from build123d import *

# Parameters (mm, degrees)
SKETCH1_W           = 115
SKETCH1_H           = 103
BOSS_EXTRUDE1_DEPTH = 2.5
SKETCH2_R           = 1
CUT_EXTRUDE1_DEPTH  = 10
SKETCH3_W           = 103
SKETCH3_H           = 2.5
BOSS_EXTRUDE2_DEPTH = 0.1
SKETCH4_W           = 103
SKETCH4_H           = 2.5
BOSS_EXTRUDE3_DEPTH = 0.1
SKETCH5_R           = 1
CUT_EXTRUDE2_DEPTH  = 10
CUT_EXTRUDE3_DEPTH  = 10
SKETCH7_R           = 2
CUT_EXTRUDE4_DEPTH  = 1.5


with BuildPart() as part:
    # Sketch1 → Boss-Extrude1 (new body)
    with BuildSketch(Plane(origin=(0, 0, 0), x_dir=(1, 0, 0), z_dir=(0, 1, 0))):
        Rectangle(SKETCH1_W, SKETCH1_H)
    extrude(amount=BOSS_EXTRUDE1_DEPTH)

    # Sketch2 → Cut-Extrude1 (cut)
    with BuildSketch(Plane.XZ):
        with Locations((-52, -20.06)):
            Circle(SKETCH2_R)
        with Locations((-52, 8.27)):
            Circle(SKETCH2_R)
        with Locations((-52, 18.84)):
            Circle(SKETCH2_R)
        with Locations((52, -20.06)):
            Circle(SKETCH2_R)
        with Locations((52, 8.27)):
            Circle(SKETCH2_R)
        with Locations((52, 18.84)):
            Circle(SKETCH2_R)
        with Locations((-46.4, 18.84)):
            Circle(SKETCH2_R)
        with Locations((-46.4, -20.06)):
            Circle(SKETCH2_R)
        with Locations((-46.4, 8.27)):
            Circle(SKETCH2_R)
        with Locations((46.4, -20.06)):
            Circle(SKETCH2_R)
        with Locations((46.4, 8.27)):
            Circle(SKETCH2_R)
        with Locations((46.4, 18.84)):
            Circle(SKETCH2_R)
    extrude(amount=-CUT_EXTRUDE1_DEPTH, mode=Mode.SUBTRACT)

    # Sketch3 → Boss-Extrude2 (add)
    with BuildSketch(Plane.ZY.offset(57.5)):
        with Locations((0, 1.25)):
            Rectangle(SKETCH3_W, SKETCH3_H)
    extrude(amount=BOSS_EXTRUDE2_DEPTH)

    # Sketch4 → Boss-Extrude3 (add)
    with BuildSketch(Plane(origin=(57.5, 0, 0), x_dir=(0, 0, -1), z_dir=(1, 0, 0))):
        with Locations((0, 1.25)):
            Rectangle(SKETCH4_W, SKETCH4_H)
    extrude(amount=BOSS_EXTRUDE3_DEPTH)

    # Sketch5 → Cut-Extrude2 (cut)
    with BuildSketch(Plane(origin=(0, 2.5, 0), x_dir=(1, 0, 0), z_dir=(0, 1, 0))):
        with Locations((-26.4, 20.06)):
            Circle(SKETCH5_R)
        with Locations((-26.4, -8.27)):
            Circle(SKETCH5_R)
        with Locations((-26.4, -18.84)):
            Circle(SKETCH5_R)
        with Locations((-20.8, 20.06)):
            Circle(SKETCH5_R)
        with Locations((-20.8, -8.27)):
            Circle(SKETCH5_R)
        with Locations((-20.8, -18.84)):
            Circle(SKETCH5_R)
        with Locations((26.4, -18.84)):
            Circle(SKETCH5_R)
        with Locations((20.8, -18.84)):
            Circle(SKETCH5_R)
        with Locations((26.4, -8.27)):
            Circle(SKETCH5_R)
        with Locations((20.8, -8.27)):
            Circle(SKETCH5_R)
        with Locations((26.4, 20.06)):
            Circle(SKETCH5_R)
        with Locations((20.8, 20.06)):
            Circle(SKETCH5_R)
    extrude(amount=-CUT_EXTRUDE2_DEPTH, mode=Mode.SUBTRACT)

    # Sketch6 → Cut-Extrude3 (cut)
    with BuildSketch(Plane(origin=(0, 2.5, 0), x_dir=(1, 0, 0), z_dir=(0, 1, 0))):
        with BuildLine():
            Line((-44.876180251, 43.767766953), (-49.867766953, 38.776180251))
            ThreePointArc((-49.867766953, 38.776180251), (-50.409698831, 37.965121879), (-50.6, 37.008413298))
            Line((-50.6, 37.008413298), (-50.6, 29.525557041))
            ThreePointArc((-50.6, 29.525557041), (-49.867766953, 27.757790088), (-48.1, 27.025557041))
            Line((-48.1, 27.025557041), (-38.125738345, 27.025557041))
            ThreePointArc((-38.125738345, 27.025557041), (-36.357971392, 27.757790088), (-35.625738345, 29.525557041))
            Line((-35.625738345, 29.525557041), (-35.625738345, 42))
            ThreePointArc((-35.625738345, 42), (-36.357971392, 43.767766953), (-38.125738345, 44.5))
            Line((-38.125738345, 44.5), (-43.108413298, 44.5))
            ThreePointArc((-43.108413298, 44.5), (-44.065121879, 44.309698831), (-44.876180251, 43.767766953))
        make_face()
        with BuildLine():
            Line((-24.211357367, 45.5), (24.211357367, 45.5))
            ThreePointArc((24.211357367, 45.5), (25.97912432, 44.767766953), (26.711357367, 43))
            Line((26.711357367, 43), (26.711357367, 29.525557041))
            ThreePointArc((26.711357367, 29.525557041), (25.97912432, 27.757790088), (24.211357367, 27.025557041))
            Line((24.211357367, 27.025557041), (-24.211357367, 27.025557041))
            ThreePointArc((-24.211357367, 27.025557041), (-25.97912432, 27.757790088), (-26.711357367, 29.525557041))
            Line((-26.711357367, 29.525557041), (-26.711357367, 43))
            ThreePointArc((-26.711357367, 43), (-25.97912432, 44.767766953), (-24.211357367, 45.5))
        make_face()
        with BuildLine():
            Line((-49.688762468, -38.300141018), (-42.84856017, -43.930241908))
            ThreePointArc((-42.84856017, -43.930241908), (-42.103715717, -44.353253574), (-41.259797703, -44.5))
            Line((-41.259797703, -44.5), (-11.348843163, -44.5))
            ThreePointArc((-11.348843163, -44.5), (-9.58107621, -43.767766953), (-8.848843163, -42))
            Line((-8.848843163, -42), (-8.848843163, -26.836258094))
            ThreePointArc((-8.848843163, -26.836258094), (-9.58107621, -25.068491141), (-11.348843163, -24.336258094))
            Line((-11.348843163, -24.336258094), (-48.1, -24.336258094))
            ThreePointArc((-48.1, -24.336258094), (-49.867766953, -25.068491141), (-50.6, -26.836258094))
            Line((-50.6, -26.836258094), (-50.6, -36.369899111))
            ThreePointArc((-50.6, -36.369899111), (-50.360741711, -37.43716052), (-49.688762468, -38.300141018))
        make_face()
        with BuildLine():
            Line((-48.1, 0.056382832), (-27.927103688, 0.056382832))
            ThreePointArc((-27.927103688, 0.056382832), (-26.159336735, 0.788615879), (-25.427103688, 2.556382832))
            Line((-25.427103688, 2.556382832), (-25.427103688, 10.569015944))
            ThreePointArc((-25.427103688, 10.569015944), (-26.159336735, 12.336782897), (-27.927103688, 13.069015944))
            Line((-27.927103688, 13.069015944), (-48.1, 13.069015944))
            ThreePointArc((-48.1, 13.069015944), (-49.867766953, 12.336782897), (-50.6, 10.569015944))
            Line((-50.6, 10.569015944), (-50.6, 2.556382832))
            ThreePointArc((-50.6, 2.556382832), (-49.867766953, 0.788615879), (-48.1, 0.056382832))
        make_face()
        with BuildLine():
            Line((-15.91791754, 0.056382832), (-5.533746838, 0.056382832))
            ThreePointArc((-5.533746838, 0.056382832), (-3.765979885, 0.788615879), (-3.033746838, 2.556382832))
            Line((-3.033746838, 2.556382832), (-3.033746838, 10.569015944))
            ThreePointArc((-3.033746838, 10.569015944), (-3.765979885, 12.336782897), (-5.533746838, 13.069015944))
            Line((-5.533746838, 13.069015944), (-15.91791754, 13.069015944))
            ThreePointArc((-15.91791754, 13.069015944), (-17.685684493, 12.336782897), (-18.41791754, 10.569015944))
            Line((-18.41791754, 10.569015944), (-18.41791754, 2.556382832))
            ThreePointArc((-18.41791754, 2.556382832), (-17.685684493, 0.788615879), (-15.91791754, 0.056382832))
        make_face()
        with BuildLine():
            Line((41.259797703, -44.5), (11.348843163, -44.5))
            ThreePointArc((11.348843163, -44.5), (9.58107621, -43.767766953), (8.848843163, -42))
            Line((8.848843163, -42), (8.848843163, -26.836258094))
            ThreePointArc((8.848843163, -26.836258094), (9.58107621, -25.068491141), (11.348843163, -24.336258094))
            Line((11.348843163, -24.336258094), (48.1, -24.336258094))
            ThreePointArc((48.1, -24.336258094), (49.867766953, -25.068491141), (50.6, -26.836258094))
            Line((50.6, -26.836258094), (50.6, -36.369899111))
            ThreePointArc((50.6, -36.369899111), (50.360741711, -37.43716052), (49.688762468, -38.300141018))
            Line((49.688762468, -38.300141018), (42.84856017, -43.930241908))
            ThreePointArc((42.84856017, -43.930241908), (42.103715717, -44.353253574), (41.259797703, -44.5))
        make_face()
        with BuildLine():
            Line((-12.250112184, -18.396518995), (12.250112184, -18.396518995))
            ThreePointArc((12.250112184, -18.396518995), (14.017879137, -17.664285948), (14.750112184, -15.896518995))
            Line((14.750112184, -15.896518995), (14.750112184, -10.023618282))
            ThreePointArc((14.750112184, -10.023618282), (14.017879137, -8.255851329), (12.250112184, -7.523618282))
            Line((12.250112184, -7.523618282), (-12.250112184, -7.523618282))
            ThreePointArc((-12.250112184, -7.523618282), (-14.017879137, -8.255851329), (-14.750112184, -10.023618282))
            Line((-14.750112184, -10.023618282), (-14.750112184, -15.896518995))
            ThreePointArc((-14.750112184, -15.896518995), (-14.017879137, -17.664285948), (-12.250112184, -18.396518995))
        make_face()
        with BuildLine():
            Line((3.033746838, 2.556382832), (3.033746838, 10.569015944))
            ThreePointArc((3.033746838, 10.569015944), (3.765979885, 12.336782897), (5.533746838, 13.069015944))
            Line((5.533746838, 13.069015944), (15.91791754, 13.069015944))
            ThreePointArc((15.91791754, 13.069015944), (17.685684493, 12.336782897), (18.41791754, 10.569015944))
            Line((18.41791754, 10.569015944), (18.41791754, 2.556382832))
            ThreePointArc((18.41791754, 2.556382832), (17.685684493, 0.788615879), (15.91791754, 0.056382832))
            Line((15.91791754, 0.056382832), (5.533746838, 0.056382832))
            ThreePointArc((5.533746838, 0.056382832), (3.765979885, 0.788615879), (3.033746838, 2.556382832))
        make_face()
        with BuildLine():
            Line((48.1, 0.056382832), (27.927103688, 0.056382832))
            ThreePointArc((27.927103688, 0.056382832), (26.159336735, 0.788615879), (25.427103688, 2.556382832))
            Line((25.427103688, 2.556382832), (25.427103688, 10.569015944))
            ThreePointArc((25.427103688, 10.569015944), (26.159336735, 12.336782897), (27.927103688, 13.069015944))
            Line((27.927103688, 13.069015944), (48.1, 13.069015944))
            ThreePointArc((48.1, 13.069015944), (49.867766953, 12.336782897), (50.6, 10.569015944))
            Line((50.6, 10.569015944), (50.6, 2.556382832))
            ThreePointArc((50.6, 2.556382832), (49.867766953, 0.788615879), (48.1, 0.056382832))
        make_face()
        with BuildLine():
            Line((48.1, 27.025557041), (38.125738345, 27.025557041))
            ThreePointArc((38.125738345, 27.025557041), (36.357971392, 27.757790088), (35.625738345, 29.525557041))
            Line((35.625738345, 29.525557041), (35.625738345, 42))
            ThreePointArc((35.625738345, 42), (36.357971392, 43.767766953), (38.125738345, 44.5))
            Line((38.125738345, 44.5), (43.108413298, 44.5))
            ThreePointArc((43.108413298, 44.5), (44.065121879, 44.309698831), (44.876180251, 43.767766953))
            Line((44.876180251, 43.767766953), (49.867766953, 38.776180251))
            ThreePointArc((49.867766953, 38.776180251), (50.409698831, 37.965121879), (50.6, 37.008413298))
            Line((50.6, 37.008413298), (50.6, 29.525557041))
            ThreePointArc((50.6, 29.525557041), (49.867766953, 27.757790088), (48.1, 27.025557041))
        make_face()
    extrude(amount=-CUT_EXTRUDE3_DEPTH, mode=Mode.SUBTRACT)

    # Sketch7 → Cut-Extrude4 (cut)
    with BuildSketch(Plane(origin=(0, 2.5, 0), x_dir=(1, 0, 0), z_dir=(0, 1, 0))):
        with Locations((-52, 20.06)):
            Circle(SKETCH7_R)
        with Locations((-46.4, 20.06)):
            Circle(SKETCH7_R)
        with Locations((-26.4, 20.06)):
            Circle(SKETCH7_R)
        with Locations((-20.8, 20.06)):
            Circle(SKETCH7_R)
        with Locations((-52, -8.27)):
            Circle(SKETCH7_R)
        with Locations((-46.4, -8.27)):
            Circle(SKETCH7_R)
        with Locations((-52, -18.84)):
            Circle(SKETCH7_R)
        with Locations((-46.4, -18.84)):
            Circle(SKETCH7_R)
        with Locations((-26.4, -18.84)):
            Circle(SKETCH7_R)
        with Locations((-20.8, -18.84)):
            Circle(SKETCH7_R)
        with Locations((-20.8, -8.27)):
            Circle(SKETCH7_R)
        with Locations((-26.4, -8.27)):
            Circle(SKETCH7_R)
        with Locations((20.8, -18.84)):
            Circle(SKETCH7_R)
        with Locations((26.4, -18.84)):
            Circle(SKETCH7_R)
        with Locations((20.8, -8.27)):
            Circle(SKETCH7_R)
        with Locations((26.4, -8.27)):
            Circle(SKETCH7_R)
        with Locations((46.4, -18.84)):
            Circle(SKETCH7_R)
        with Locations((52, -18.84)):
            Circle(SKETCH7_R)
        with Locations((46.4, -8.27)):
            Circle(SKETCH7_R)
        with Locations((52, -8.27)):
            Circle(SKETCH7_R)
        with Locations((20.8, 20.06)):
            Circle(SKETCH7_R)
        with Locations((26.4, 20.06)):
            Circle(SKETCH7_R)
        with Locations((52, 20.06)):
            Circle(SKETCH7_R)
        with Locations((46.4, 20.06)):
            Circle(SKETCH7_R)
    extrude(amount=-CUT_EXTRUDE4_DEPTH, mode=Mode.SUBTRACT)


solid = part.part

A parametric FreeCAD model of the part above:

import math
import FreeCAD as App
import Part
import Sketcher


def add_polygon(sketch, points):
    """Adds a closed chain of lines whose ends are joined by coincident constraints."""
    first, n = sketch.GeometryCount, len(points)
    for a, b in zip(points, points[1:] + points[:1]):
        sketch.addGeometry(Part.LineSegment(App.Vector(*a, 0), App.Vector(*b, 0)), False)
    for i in range(n):
        sketch.addConstraint(Sketcher.Constraint("Coincident", first + i, 2, first + (i + 1) % n, 1))

doc = App.newDocument("Part")
body = doc.addObject("PartDesign::Body", "Body")

# Sketch on XZ plane
sketch1 = body.newObject("Sketcher::SketchObject", "Sketch")
sketch1.AttachmentSupport = (doc.getObject("XZ_Plane"), [""])
sketch1.MapMode = "FlatFace"
add_polygon(sketch1, [(-57.5, -51.5), (-57.5, 51.5), (57.5, 51.5), (57.5, -51.5)])  # lines 0-3
sketch1.addConstraint(Sketcher.Constraint("Vertical", 0))
sketch1.addConstraint(Sketcher.Constraint("Horizontal", 1))
sketch1.addConstraint(Sketcher.Constraint("Vertical", 2))
sketch1.addConstraint(Sketcher.Constraint("Horizontal", 3))
sketch1.addConstraint(Sketcher.Constraint("Symmetric", 0, 2, 2, 2, -1, 1))
sketch1.addConstraint(Sketcher.Constraint("DistanceX", 1, 1, 1, 2, 115.0))
sketch1.addConstraint(Sketcher.Constraint("DistanceY", 0, 1, 0, 2, 103.0))
pad1 = body.newObject("PartDesign::Pad", "Pad")
pad1.Profile = sketch1
pad1.Length = 2.5
pad1.Reversed = True

# Sketch on XZ plane
sketch2 = body.newObject("Sketcher::SketchObject", "Sketch001")
sketch2.AttachmentSupport = (doc.getObject("XZ_Plane"), [""])
sketch2.MapMode = "FlatFace"
sketch2.addGeometry(Part.Circle(App.Vector(-52, -20.06, 0), App.Vector(0, 0, 1), 1), False)
sketch2.addGeometry(Part.Circle(App.Vector(-52, 8.27, 0), App.Vector(0, 0, 1), 1), False)
sketch2.addGeometry(Part.Circle(App.Vector(-52, 18.84, 0), App.Vector(0, 0, 1), 1), False)
sketch2.addGeometry(Part.Circle(App.Vector(52, -20.06, 0), App.Vector(0, 0, 1), 1), False)
sketch2.addGeometry(Part.Circle(App.Vector(52, 8.27, 0), App.Vector(0, 0, 1), 1), False)
sketch2.addGeometry(Part.Circle(App.Vector(52, 18.84, 0), App.Vector(0, 0, 1), 1), False)
sketch2.addGeometry(Part.Circle(App.Vector(-46.4, 18.84, 0), App.Vector(0, 0, 1), 1), False)
sketch2.addGeometry(Part.Circle(App.Vector(-46.4, -20.06, 0), App.Vector(0, 0, 1), 1), False)
sketch2.addGeometry(Part.Circle(App.Vector(-46.4, 8.27, 0), App.Vector(0, 0, 1), 1), False)
sketch2.addGeometry(Part.Circle(App.Vector(46.4, -20.06, 0), App.Vector(0, 0, 1), 1), False)
sketch2.addGeometry(Part.Circle(App.Vector(46.4, 8.27, 0), App.Vector(0, 0, 1), 1), False)
sketch2.addGeometry(Part.Circle(App.Vector(46.4, 18.84, 0), App.Vector(0, 0, 1), 1), False)
sketch2.addConstraint(Sketcher.Constraint("Equal", 0, 1))
sketch2.addConstraint(Sketcher.Constraint("Equal", 1, 2))
sketch2.addConstraint(Sketcher.Constraint("Equal", 2, 3))
sketch2.addConstraint(Sketcher.Constraint("Equal", 3, 4))
sketch2.addConstraint(Sketcher.Constraint("Equal", 4, 5))
sketch2.addConstraint(Sketcher.Constraint("Equal", 5, 6))
sketch2.addConstraint(Sketcher.Constraint("Equal", 6, 7))
sketch2.addConstraint(Sketcher.Constraint("Equal", 7, 8))
sketch2.addConstraint(Sketcher.Constraint("Equal", 8, 9))
sketch2.addConstraint(Sketcher.Constraint("Equal", 9, 10))
sketch2.addConstraint(Sketcher.Constraint("Equal", 10, 11))
sketch2.addConstraint(Sketcher.Constraint("Symmetric", 0, 3, 3, 3, -2))
sketch2.addConstraint(Sketcher.Constraint("Symmetric", 1, 3, 4, 3, -2))
sketch2.addConstraint(Sketcher.Constraint("Symmetric", 2, 3, 5, 3, -2))
sketch2.addConstraint(Sketcher.Constraint("Symmetric", 7, 3, 9, 3, -2))
sketch2.addConstraint(Sketcher.Constraint("Symmetric", 8, 3, 10, 3, -2))
sketch2.addConstraint(Sketcher.Constraint("Symmetric", 6, 3, 11, 3, -2))
sketch2.addConstraint(Sketcher.Constraint("Horizontal", 5, 3, 6, 3))
sketch2.addConstraint(Sketcher.Constraint("Horizontal", 3, 3, 7, 3))
sketch2.addConstraint(Sketcher.Constraint("Horizontal", 4, 3, 8, 3))
sketch2.addConstraint(Sketcher.Constraint("Vertical", 0, 3, 1, 3))
sketch2.addConstraint(Sketcher.Constraint("Vertical", 1, 3, 2, 3))
sketch2.addConstraint(Sketcher.Constraint("Vertical", 6, 3, 7, 3))
sketch2.addConstraint(Sketcher.Constraint("Vertical", 7, 3, 8, 3))
sketch2.addConstraint(Sketcher.Constraint("Diameter", 0, 2.0))
sketch2.addConstraint(Sketcher.Constraint("DistanceX", 0, 3, -1, 1, 52.0))
sketch2.addConstraint(Sketcher.Constraint("DistanceX", 6, 3, -1, 1, 46.4))
sketch2.addConstraint(Sketcher.Constraint("DistanceY", 0, 3, 2, 3, 38.9))
sketch2.addConstraint(Sketcher.Constraint("DistanceY", 0, 3, -1, 1, 20.06))
sketch2.addConstraint(Sketcher.Constraint("DistanceY", -1, 1, 1, 3, 8.27))
pocket1 = body.newObject("PartDesign::Pocket", "Pocket")
pocket1.Profile = sketch2
pocket1.Length = 10

# Sketch on YZ plane
sketch3 = body.newObject("Sketcher::SketchObject", "Sketch002")
sketch3.AttachmentSupport = (doc.getObject("YZ_Plane"), [""])
sketch3.MapMode = "FlatFace"
sketch3.AttachmentOffset = App.Placement(App.Vector(0, 0, -57.5), App.Rotation())
add_polygon(sketch3, [(2.5, -51.5), (0, -51.5), (0, 51.5), (2.5, 51.5)])  # lines 0-3
sketch3.addConstraint(Sketcher.Constraint("Horizontal", 0))
sketch3.addConstraint(Sketcher.Constraint("Vertical", 1))
sketch3.addConstraint(Sketcher.Constraint("Horizontal", 2))
sketch3.addConstraint(Sketcher.Constraint("Vertical", 3))
sketch3.addConstraint(Sketcher.Constraint("Symmetric", 0, 2, 1, 2, -1, 1))
sketch3.addConstraint(Sketcher.Constraint("DistanceY", 1, 1, 1, 2, 103.0))
sketch3.addConstraint(Sketcher.Constraint("DistanceX", 0, 2, 0, 1, 2.5))
pad2 = body.newObject("PartDesign::Pad", "Pad001")
pad2.Profile = sketch3
pad2.Length = 0.1
pad2.Reversed = True

# Sketch on YZ plane
sketch4 = body.newObject("Sketcher::SketchObject", "Sketch003")
sketch4.AttachmentSupport = (doc.getObject("YZ_Plane"), [""])
sketch4.MapMode = "FlatFace"
sketch4.AttachmentOffset = App.Placement(App.Vector(0, 0, 57.5), App.Rotation())
add_polygon(sketch4, [(2.5, 51.5), (0, 51.5), (0, -51.5), (2.5, -51.5)])  # lines 0-3
sketch4.addConstraint(Sketcher.Constraint("Horizontal", 0))
sketch4.addConstraint(Sketcher.Constraint("Vertical", 1))
sketch4.addConstraint(Sketcher.Constraint("Horizontal", 2))
sketch4.addConstraint(Sketcher.Constraint("Vertical", 3))
sketch4.addConstraint(Sketcher.Constraint("Symmetric", 0, 2, 1, 2, -1, 1))
sketch4.addConstraint(Sketcher.Constraint("DistanceY", 1, 2, 1, 1, 103.0))
sketch4.addConstraint(Sketcher.Constraint("DistanceX", 0, 2, 0, 1, 2.5))
pad3 = body.newObject("PartDesign::Pad", "Pad002")
pad3.Profile = sketch4
pad3.Length = 0.1

# Sketch on XZ plane
sketch5 = body.newObject("Sketcher::SketchObject", "Sketch004")
sketch5.AttachmentSupport = (doc.getObject("XZ_Plane"), [""])
sketch5.MapMode = "FlatFace"
sketch5.AttachmentOffset = App.Placement(App.Vector(0, 0, -2.5), App.Rotation())
sketch5.addGeometry(Part.Circle(App.Vector(-26.4, -20.06, 0), App.Vector(0, 0, 1), 1), False)
sketch5.addGeometry(Part.Circle(App.Vector(-26.4, 8.27, 0), App.Vector(0, 0, 1), 1), False)
sketch5.addGeometry(Part.Circle(App.Vector(-26.4, 18.84, 0), App.Vector(0, 0, 1), 1), False)
sketch5.addGeometry(Part.Circle(App.Vector(-20.8, -20.06, 0), App.Vector(0, 0, 1), 1), False)
sketch5.addGeometry(Part.Circle(App.Vector(-20.8, 8.27, 0), App.Vector(0, 0, 1), 1), False)
sketch5.addGeometry(Part.Circle(App.Vector(-20.8, 18.84, 0), App.Vector(0, 0, 1), 1), False)
sketch5.addGeometry(Part.Circle(App.Vector(26.4, 18.84, 0), App.Vector(0, 0, 1), 1), False)
sketch5.addGeometry(Part.Circle(App.Vector(20.8, 18.84, 0), App.Vector(0, 0, 1), 1), False)
sketch5.addGeometry(Part.Circle(App.Vector(26.4, 8.27, 0), App.Vector(0, 0, 1), 1), False)
sketch5.addGeometry(Part.Circle(App.Vector(20.8, 8.27, 0), App.Vector(0, 0, 1), 1), False)
sketch5.addGeometry(Part.Circle(App.Vector(26.4, -20.06, 0), App.Vector(0, 0, 1), 1), False)
sketch5.addGeometry(Part.Circle(App.Vector(20.8, -20.06, 0), App.Vector(0, 0, 1), 1), False)
sketch5.addConstraint(Sketcher.Constraint("Equal", 0, 1))
sketch5.addConstraint(Sketcher.Constraint("Equal", 1, 2))
sketch5.addConstraint(Sketcher.Constraint("Equal", 2, 3))
sketch5.addConstraint(Sketcher.Constraint("Equal", 3, 4))
sketch5.addConstraint(Sketcher.Constraint("Equal", 4, 5))
sketch5.addConstraint(Sketcher.Constraint("Equal", 5, 6))
sketch5.addConstraint(Sketcher.Constraint("Equal", 6, 7))
sketch5.addConstraint(Sketcher.Constraint("Equal", 7, 8))
sketch5.addConstraint(Sketcher.Constraint("Equal", 8, 9))
sketch5.addConstraint(Sketcher.Constraint("Equal", 9, 10))
sketch5.addConstraint(Sketcher.Constraint("Equal", 10, 11))
sketch5.addConstraint(Sketcher.Constraint("Symmetric", 2, 3, 6, 3, -2))
sketch5.addConstraint(Sketcher.Constraint("Symmetric", 5, 3, 7, 3, -2))
sketch5.addConstraint(Sketcher.Constraint("Symmetric", 1, 3, 8, 3, -2))
sketch5.addConstraint(Sketcher.Constraint("Symmetric", 4, 3, 9, 3, -2))
sketch5.addConstraint(Sketcher.Constraint("Symmetric", 0, 3, 10, 3, -2))
sketch5.addConstraint(Sketcher.Constraint("Symmetric", 3, 3, 11, 3, -2))
sketch5.addConstraint(Sketcher.Constraint("Horizontal", 0, 3, 3, 3))
sketch5.addConstraint(Sketcher.Constraint("Horizontal", 1, 3, 4, 3))
sketch5.addConstraint(Sketcher.Constraint("Horizontal", 2, 3, 5, 3))
sketch5.addConstraint(Sketcher.Constraint("Vertical", 0, 3, 1, 3))
sketch5.addConstraint(Sketcher.Constraint("Vertical", 1, 3, 2, 3))
sketch5.addConstraint(Sketcher.Constraint("Vertical", 3, 3, 4, 3))
sketch5.addConstraint(Sketcher.Constraint("Vertical", 4, 3, 5, 3))
sketch5.addConstraint(Sketcher.Constraint("Diameter", 0, 2.0))
sketch5.addConstraint(Sketcher.Constraint("DistanceX", 0, 3, -1, 1, 26.4))
sketch5.addConstraint(Sketcher.Constraint("DistanceX", 3, 3, -1, 1, 20.8))
sketch5.addConstraint(Sketcher.Constraint("DistanceY", 0, 3, 2, 3, 38.9))
sketch5.addConstraint(Sketcher.Constraint("DistanceY", 0, 3, -1, 1, 20.06))
sketch5.addConstraint(Sketcher.Constraint("DistanceY", -1, 1, 1, 3, 8.27))
pocket2 = body.newObject("PartDesign::Pocket", "Pocket001")
pocket2.Profile = sketch5
pocket2.Length = 10
pocket2.Reversed = True

# Sketch on XZ plane
sketch6 = body.newObject("Sketcher::SketchObject", "Sketch005")
sketch6.AttachmentSupport = (doc.getObject("XZ_Plane"), [""])
sketch6.MapMode = "FlatFace"
sketch6.AttachmentOffset = App.Placement(App.Vector(0, 0, -2.5), App.Rotation())
sketch6.addGeometry(Part.LineSegment(App.Vector(-44.87618, -43.767767, 0), App.Vector(-49.867767, -38.77618, 0)), False)
sketch6.addGeometry(Part.ArcOfCircle(Part.Circle(App.Vector(-48.1, -37.008413, 0), App.Vector(0, 0, 1), 2.5), math.radians(-180), math.radians(-135)), False)
sketch6.addGeometry(Part.LineSegment(App.Vector(-50.6, -37.008413, 0), App.Vector(-50.6, -29.525557, 0)), False)
sketch6.addGeometry(Part.ArcOfCircle(Part.Circle(App.Vector(-48.1, -29.525557, 0), App.Vector(0, 0, 1), 2.5), math.radians(90), math.radians(180)), False)
sketch6.addGeometry(Part.LineSegment(App.Vector(-48.1, -27.025557, 0), App.Vector(-38.125738, -27.025557, 0)), False)
sketch6.addGeometry(Part.ArcOfCircle(Part.Circle(App.Vector(-38.125738, -29.525557, 0), App.Vector(0, 0, 1), 2.5), math.radians(0), math.radians(90)), False)
sketch6.addGeometry(Part.LineSegment(App.Vector(-35.625738, -29.525557, 0), App.Vector(-35.625738, -42, 0)), False)
sketch6.addGeometry(Part.ArcOfCircle(Part.Circle(App.Vector(-38.125738, -42, 0), App.Vector(0, 0, 1), 2.5), math.radians(-90), math.radians(0)), False)
sketch6.addGeometry(Part.LineSegment(App.Vector(-38.125738, -44.5, 0), App.Vector(-43.108413, -44.5, 0)), False)
sketch6.addGeometry(Part.ArcOfCircle(Part.Circle(App.Vector(-43.108413, -42, 0), App.Vector(0, 0, 1), 2.5), math.radians(-135), math.radians(-90)), False)
sketch6.addGeometry(Part.LineSegment(App.Vector(24.211357, -45.5, 0), App.Vector(-24.211357, -45.5, 0)), False)
sketch6.addGeometry(Part.ArcOfCircle(Part.Circle(App.Vector(-24.211357, -43, 0), App.Vector(0, 0, 1), 2.5), math.radians(180), math.radians(270)), False)
sketch6.addGeometry(Part.LineSegment(App.Vector(-26.711357, -43, 0), App.Vector(-26.711357, -29.525557, 0)), False)
sketch6.addGeometry(Part.ArcOfCircle(Part.Circle(App.Vector(-24.211357, -29.525557, 0), App.Vector(0, 0, 1), 2.5), math.radians(90), math.radians(180)), False)
sketch6.addGeometry(Part.LineSegment(App.Vector(-24.211357, -27.025557, 0), App.Vector(24.211357, -27.025557, 0)), False)
sketch6.addGeometry(Part.ArcOfCircle(Part.Circle(App.Vector(24.211357, -29.525557, 0), App.Vector(0, 0, 1), 2.5), math.radians(0), math.radians(90)), False)
sketch6.addGeometry(Part.LineSegment(App.Vector(26.711357, -29.525557, 0), App.Vector(26.711357, -43, 0)), False)
sketch6.addGeometry(Part.ArcOfCircle(Part.Circle(App.Vector(24.211357, -43, 0), App.Vector(0, 0, 1), 2.5), math.radians(-90), math.radians(0)), False)
sketch6.addGeometry(Part.LineSegment(App.Vector(-49.688762, 38.300141, 0), App.Vector(-42.84856, 43.930242, 0)), False)
sketch6.addGeometry(Part.ArcOfCircle(Part.Circle(App.Vector(-41.259798, 42, 0), App.Vector(0, 0, 1), 2.5), math.radians(90), math.radians(129.457448)), False)
sketch6.addGeometry(Part.LineSegment(App.Vector(-41.259798, 44.5, 0), App.Vector(-11.348843, 44.5, 0)), False)
sketch6.addGeometry(Part.ArcOfCircle(Part.Circle(App.Vector(-11.348843, 42, 0), App.Vector(0, 0, 1), 2.5), math.radians(0), math.radians(90)), False)
sketch6.addGeometry(Part.LineSegment(App.Vector(-8.848843, 42, 0), App.Vector(-8.848843, 26.836258, 0)), False)
sketch6.addGeometry(Part.ArcOfCircle(Part.Circle(App.Vector(-11.348843, 26.836258, 0), App.Vector(0, 0, 1), 2.5), math.radians(-90), math.radians(0)), False)
sketch6.addGeometry(Part.LineSegment(App.Vector(-11.348843, 24.336258, 0), App.Vector(-48.1, 24.336258, 0)), False)
sketch6.addGeometry(Part.ArcOfCircle(Part.Circle(App.Vector(-48.1, 26.836258, 0), App.Vector(0, 0, 1), 2.5), math.radians(180), math.radians(270)), False)
sketch6.addGeometry(Part.LineSegment(App.Vector(-50.6, 26.836258, 0), App.Vector(-50.6, 36.369899, 0)), False)
sketch6.addGeometry(Part.ArcOfCircle(Part.Circle(App.Vector(-48.1, 36.369899, 0), App.Vector(0, 0, 1), 2.5), math.radians(129.457448), math.radians(180)), False)
sketch6.addGeometry(Part.LineSegment(App.Vector(-48.1, -0.056383, 0), App.Vector(-27.927104, -0.056383, 0)), False)
sketch6.addGeometry(Part.ArcOfCircle(Part.Circle(App.Vector(-27.927104, -2.556383, 0), App.Vector(0, 0, 1), 2.5), math.radians(0), math.radians(90)), False)
sketch6.addGeometry(Part.LineSegment(App.Vector(-25.427104, -2.556383, 0), App.Vector(-25.427104, -10.569016, 0)), False)
sketch6.addGeometry(Part.ArcOfCircle(Part.Circle(App.Vector(-27.927104, -10.569016, 0), App.Vector(0, 0, 1), 2.5), math.radians(-90), math.radians(0)), False)
sketch6.addGeometry(Part.LineSegment(App.Vector(-27.927104, -13.069016, 0), App.Vector(-48.1, -13.069016, 0)), False)
sketch6.addGeometry(Part.ArcOfCircle(Part.Circle(App.Vector(-48.1, -10.569016, 0), App.Vector(0, 0, 1), 2.5), math.radians(180), math.radians(270)), False)
sketch6.addGeometry(Part.LineSegment(App.Vector(-50.6, -10.569016, 0), App.Vector(-50.6, -2.556383, 0)), False)
sketch6.addGeometry(Part.ArcOfCircle(Part.Circle(App.Vector(-48.1, -2.556383, 0), App.Vector(0, 0, 1), 2.5), math.radians(90), math.radians(180)), False)
sketch6.addGeometry(Part.LineSegment(App.Vector(-15.917918, -0.056383, 0), App.Vector(-5.533747, -0.056383, 0)), False)
sketch6.addGeometry(Part.ArcOfCircle(Part.Circle(App.Vector(-5.533747, -2.556383, 0), App.Vector(0, 0, 1), 2.5), math.radians(0), math.radians(90)), False)
sketch6.addGeometry(Part.LineSegment(App.Vector(-3.033747, -2.556383, 0), App.Vector(-3.033747, -10.569016, 0)), False)
sketch6.addGeometry(Part.ArcOfCircle(Part.Circle(App.Vector(-5.533747, -10.569016, 0), App.Vector(0, 0, 1), 2.5), math.radians(-90), math.radians(0)), False)
sketch6.addGeometry(Part.LineSegment(App.Vector(-5.533747, -13.069016, 0), App.Vector(-15.917918, -13.069016, 0)), False)
sketch6.addGeometry(Part.ArcOfCircle(Part.Circle(App.Vector(-15.917918, -10.569016, 0), App.Vector(0, 0, 1), 2.5), math.radians(180), math.radians(270)), False)
sketch6.addGeometry(Part.LineSegment(App.Vector(-18.417918, -10.569016, 0), App.Vector(-18.417918, -2.556383, 0)), False)
sketch6.addGeometry(Part.ArcOfCircle(Part.Circle(App.Vector(-15.917918, -2.556383, 0), App.Vector(0, 0, 1), 2.5), math.radians(90), math.radians(180)), False)
sketch6.addGeometry(Part.LineSegment(App.Vector(11.348843, 44.5, 0), App.Vector(41.259798, 44.5, 0)), False)
sketch6.addGeometry(Part.ArcOfCircle(Part.Circle(App.Vector(41.259798, 42, 0), App.Vector(0, 0, 1), 2.5), math.radians(50.542552), math.radians(90)), False)
sketch6.addGeometry(Part.LineSegment(App.Vector(42.84856, 43.930242, 0), App.Vector(49.688762, 38.300141, 0)), False)
sketch6.addGeometry(Part.ArcOfCircle(Part.Circle(App.Vector(48.1, 36.369899, 0), App.Vector(0, 0, 1), 2.5), math.radians(0), math.radians(50.542552)), False)
sketch6.addGeometry(Part.LineSegment(App.Vector(50.6, 36.369899, 0), App.Vector(50.6, 26.836258, 0)), False)
sketch6.addGeometry(Part.ArcOfCircle(Part.Circle(App.Vector(48.1, 26.836258, 0), App.Vector(0, 0, 1), 2.5), math.radians(-90), math.radians(0)), False)
sketch6.addGeometry(Part.LineSegment(App.Vector(48.1, 24.336258, 0), App.Vector(11.348843, 24.336258, 0)), False)
sketch6.addGeometry(Part.ArcOfCircle(Part.Circle(App.Vector(11.348843, 26.836258, 0), App.Vector(0, 0, 1), 2.5), math.radians(180), math.radians(270)), False)
sketch6.addGeometry(Part.LineSegment(App.Vector(8.848843, 26.836258, 0), App.Vector(8.848843, 42, 0)), False)
sketch6.addGeometry(Part.ArcOfCircle(Part.Circle(App.Vector(11.348843, 42, 0), App.Vector(0, 0, 1), 2.5), math.radians(90), math.radians(180)), False)
sketch6.addGeometry(Part.LineSegment(App.Vector(-12.250112, 18.396519, 0), App.Vector(12.250112, 18.396519, 0)), False)
sketch6.addGeometry(Part.ArcOfCircle(Part.Circle(App.Vector(12.250112, 15.896519, 0), App.Vector(0, 0, 1), 2.5), math.radians(0), math.radians(90)), False)
sketch6.addGeometry(Part.LineSegment(App.Vector(14.750112, 15.896519, 0), App.Vector(14.750112, 10.023618, 0)), False)
sketch6.addGeometry(Part.ArcOfCircle(Part.Circle(App.Vector(12.250112, 10.023618, 0), App.Vector(0, 0, 1), 2.5), math.radians(-90), math.radians(0)), False)
sketch6.addGeometry(Part.LineSegment(App.Vector(12.250112, 7.523618, 0), App.Vector(-12.250112, 7.523618, 0)), False)
sketch6.addGeometry(Part.ArcOfCircle(Part.Circle(App.Vector(-12.250112, 10.023618, 0), App.Vector(0, 0, 1), 2.5), math.radians(180), math.radians(270)), False)
sketch6.addGeometry(Part.LineSegment(App.Vector(-14.750112, 10.023618, 0), App.Vector(-14.750112, 15.896519, 0)), False)
sketch6.addGeometry(Part.ArcOfCircle(Part.Circle(App.Vector(-12.250112, 15.896519, 0), App.Vector(0, 0, 1), 2.5), math.radians(90), math.radians(180)), False)
sketch6.addGeometry(Part.LineSegment(App.Vector(3.033747, -10.569016, 0), App.Vector(3.033747, -2.556383, 0)), False)
sketch6.addGeometry(Part.ArcOfCircle(Part.Circle(App.Vector(5.533747, -2.556383, 0), App.Vector(0, 0, 1), 2.5), math.radians(90), math.radians(180)), False)
sketch6.addGeometry(Part.LineSegment(App.Vector(5.533747, -0.056383, 0), App.Vector(15.917918, -0.056383, 0)), False)
sketch6.addGeometry(Part.ArcOfCircle(Part.Circle(App.Vector(15.917918, -2.556383, 0), App.Vector(0, 0, 1), 2.5), math.radians(0), math.radians(90)), False)
sketch6.addGeometry(Part.LineSegment(App.Vector(18.417918, -2.556383, 0), App.Vector(18.417918, -10.569016, 0)), False)
sketch6.addGeometry(Part.ArcOfCircle(Part.Circle(App.Vector(15.917918, -10.569016, 0), App.Vector(0, 0, 1), 2.5), math.radians(-90), math.radians(0)), False)
sketch6.addGeometry(Part.LineSegment(App.Vector(15.917918, -13.069016, 0), App.Vector(5.533747, -13.069016, 0)), False)
sketch6.addGeometry(Part.ArcOfCircle(Part.Circle(App.Vector(5.533747, -10.569016, 0), App.Vector(0, 0, 1), 2.5), math.radians(180), math.radians(270)), False)
sketch6.addGeometry(Part.LineSegment(App.Vector(27.927104, -0.056383, 0), App.Vector(48.1, -0.056383, 0)), False)
sketch6.addGeometry(Part.ArcOfCircle(Part.Circle(App.Vector(48.1, -2.556383, 0), App.Vector(0, 0, 1), 2.5), math.radians(0), math.radians(90)), False)
sketch6.addGeometry(Part.LineSegment(App.Vector(50.6, -2.556383, 0), App.Vector(50.6, -10.569016, 0)), False)
sketch6.addGeometry(Part.ArcOfCircle(Part.Circle(App.Vector(48.1, -10.569016, 0), App.Vector(0, 0, 1), 2.5), math.radians(-90), math.radians(0)), False)
sketch6.addGeometry(Part.LineSegment(App.Vector(48.1, -13.069016, 0), App.Vector(27.927104, -13.069016, 0)), False)
sketch6.addGeometry(Part.ArcOfCircle(Part.Circle(App.Vector(27.927104, -10.569016, 0), App.Vector(0, 0, 1), 2.5), math.radians(180), math.radians(270)), False)
sketch6.addGeometry(Part.LineSegment(App.Vector(25.427104, -10.569016, 0), App.Vector(25.427104, -2.556383, 0)), False)
sketch6.addGeometry(Part.ArcOfCircle(Part.Circle(App.Vector(27.927104, -2.556383, 0), App.Vector(0, 0, 1), 2.5), math.radians(90), math.radians(180)), False)
sketch6.addGeometry(Part.LineSegment(App.Vector(38.125738, -27.025557, 0), App.Vector(48.1, -27.025557, 0)), False)
sketch6.addGeometry(Part.ArcOfCircle(Part.Circle(App.Vector(48.1, -29.525557, 0), App.Vector(0, 0, 1), 2.5), math.radians(0), math.radians(90)), False)
sketch6.addGeometry(Part.LineSegment(App.Vector(50.6, -29.525557, 0), App.Vector(50.6, -37.008413, 0)), False)
sketch6.addGeometry(Part.ArcOfCircle(Part.Circle(App.Vector(48.1, -37.008413, 0), App.Vector(0, 0, 1), 2.5), math.radians(-45), math.radians(0)), False)
sketch6.addGeometry(Part.LineSegment(App.Vector(49.867767, -38.77618, 0), App.Vector(44.87618, -43.767767, 0)), False)
sketch6.addGeometry(Part.ArcOfCircle(Part.Circle(App.Vector(43.108413, -42, 0), App.Vector(0, 0, 1), 2.5), math.radians(-90), math.radians(-45)), False)
sketch6.addGeometry(Part.LineSegment(App.Vector(43.108413, -44.5, 0), App.Vector(38.125738, -44.5, 0)), False)
sketch6.addGeometry(Part.ArcOfCircle(Part.Circle(App.Vector(38.125738, -42, 0), App.Vector(0, 0, 1), 2.5), math.radians(180), math.radians(270)), False)
sketch6.addGeometry(Part.LineSegment(App.Vector(35.625738, -42, 0), App.Vector(35.625738, -29.525557, 0)), False)
sketch6.addGeometry(Part.ArcOfCircle(Part.Circle(App.Vector(38.125738, -29.525557, 0), App.Vector(0, 0, 1), 2.5), math.radians(90), math.radians(180)), False)
sketch6.addConstraint(Sketcher.Constraint("Tangent", 0, 2, 1, 2))
sketch6.addConstraint(Sketcher.Constraint("Tangent", 1, 1, 2, 1))
sketch6.addConstraint(Sketcher.Constraint("Tangent", 2, 2, 3, 2))
sketch6.addConstraint(Sketcher.Constraint("Tangent", 3, 1, 4, 1))
sketch6.addConstraint(Sketcher.Constraint("Tangent", 4, 2, 5, 2))
sketch6.addConstraint(Sketcher.Constraint("Tangent", 5, 1, 6, 1))
sketch6.addConstraint(Sketcher.Constraint("Tangent", 6, 2, 7, 2))
sketch6.addConstraint(Sketcher.Constraint("Tangent", 7, 1, 8, 1))
sketch6.addConstraint(Sketcher.Constraint("Tangent", 8, 2, 9, 2))
sketch6.addConstraint(Sketcher.Constraint("Tangent", 9, 1, 0, 1))
sketch6.addConstraint(Sketcher.Constraint("Tangent", 10, 2, 11, 2))
sketch6.addConstraint(Sketcher.Constraint("Tangent", 11, 1, 12, 1))
sketch6.addConstraint(Sketcher.Constraint("Tangent", 12, 2, 13, 2))
sketch6.addConstraint(Sketcher.Constraint("Tangent", 13, 1, 14, 1))
sketch6.addConstraint(Sketcher.Constraint("Tangent", 14, 2, 15, 2))
sketch6.addConstraint(Sketcher.Constraint("Tangent", 15, 1, 16, 1))
sketch6.addConstraint(Sketcher.Constraint("Tangent", 16, 2, 17, 2))
sketch6.addConstraint(Sketcher.Constraint("Tangent", 17, 1, 10, 1))
sketch6.addConstraint(Sketcher.Constraint("Tangent", 18, 2, 19, 2))
sketch6.addConstraint(Sketcher.Constraint("Tangent", 19, 1, 20, 1))
sketch6.addConstraint(Sketcher.Constraint("Tangent", 20, 2, 21, 2))
sketch6.addConstraint(Sketcher.Constraint("Tangent", 21, 1, 22, 1))
sketch6.addConstraint(Sketcher.Constraint("Tangent", 22, 2, 23, 2))
sketch6.addConstraint(Sketcher.Constraint("Tangent", 23, 1, 24, 1))
sketch6.addConstraint(Sketcher.Constraint("Tangent", 24, 2, 25, 2))
sketch6.addConstraint(Sketcher.Constraint("Tangent", 25, 1, 26, 1))
sketch6.addConstraint(Sketcher.Constraint("Tangent", 26, 2, 27, 2))
sketch6.addConstraint(Sketcher.Constraint("Tangent", 27, 1, 18, 1))
sketch6.addConstraint(Sketcher.Constraint("Tangent", 28, 2, 29, 2))
sketch6.addConstraint(Sketcher.Constraint("Tangent", 29, 1, 30, 1))
sketch6.addConstraint(Sketcher.Constraint("Tangent", 30, 2, 31, 2))
sketch6.addConstraint(Sketcher.Constraint("Tangent", 31, 1, 32, 1))
sketch6.addConstraint(Sketcher.Constraint("Tangent", 32, 2, 33, 2))
sketch6.addConstraint(Sketcher.Constraint("Tangent", 33, 1, 34, 1))
sketch6.addConstraint(Sketcher.Constraint("Tangent", 34, 2, 35, 2))
sketch6.addConstraint(Sketcher.Constraint("Tangent", 35, 1, 28, 1))
sketch6.addConstraint(Sketcher.Constraint("Tangent", 36, 2, 37, 2))
sketch6.addConstraint(Sketcher.Constraint("Tangent", 37, 1, 38, 1))
sketch6.addConstraint(Sketcher.Constraint("Tangent", 38, 2, 39, 2))
sketch6.addConstraint(Sketcher.Constraint("Tangent", 39, 1, 40, 1))
sketch6.addConstraint(Sketcher.Constraint("Tangent", 40, 2, 41, 2))
sketch6.addConstraint(Sketcher.Constraint("Tangent", 41, 1, 42, 1))
sketch6.addConstraint(Sketcher.Constraint("Tangent", 42, 2, 43, 2))
sketch6.addConstraint(Sketcher.Constraint("Tangent", 43, 1, 36, 1))
sketch6.addConstraint(Sketcher.Constraint("Tangent", 44, 2, 45, 2))
sketch6.addConstraint(Sketcher.Constraint("Tangent", 45, 1, 46, 1))
sketch6.addConstraint(Sketcher.Constraint("Tangent", 46, 2, 47, 2))
sketch6.addConstraint(Sketcher.Constraint("Tangent", 47, 1, 48, 1))
sketch6.addConstraint(Sketcher.Constraint("Tangent", 48, 2, 49, 2))
sketch6.addConstraint(Sketcher.Constraint("Tangent", 49, 1, 50, 1))
sketch6.addConstraint(Sketcher.Constraint("Tangent", 50, 2, 51, 2))
sketch6.addConstraint(Sketcher.Constraint("Tangent", 51, 1, 52, 1))
sketch6.addConstraint(Sketcher.Constraint("Tangent", 52, 2, 53, 2))
sketch6.addConstraint(Sketcher.Constraint("Tangent", 53, 1, 44, 1))
sketch6.addConstraint(Sketcher.Constraint("Tangent", 54, 2, 55, 2))
sketch6.addConstraint(Sketcher.Constraint("Tangent", 55, 1, 56, 1))
sketch6.addConstraint(Sketcher.Constraint("Tangent", 56, 2, 57, 2))
sketch6.addConstraint(Sketcher.Constraint("Tangent", 57, 1, 58, 1))
sketch6.addConstraint(Sketcher.Constraint("Tangent", 58, 2, 59, 2))
sketch6.addConstraint(Sketcher.Constraint("Tangent", 59, 1, 60, 1))
sketch6.addConstraint(Sketcher.Constraint("Tangent", 60, 2, 61, 2))
sketch6.addConstraint(Sketcher.Constraint("Tangent", 61, 1, 54, 1))
sketch6.addConstraint(Sketcher.Constraint("Tangent", 62, 2, 63, 2))
sketch6.addConstraint(Sketcher.Constraint("Tangent", 63, 1, 64, 1))
sketch6.addConstraint(Sketcher.Constraint("Tangent", 64, 2, 65, 2))
sketch6.addConstraint(Sketcher.Constraint("Tangent", 65, 1, 66, 1))
sketch6.addConstraint(Sketcher.Constraint("Tangent", 66, 2, 67, 2))
sketch6.addConstraint(Sketcher.Constraint("Tangent", 67, 1, 68, 1))
sketch6.addConstraint(Sketcher.Constraint("Tangent", 68, 2, 69, 2))
sketch6.addConstraint(Sketcher.Constraint("Tangent", 69, 1, 62, 1))
sketch6.addConstraint(Sketcher.Constraint("Tangent", 70, 2, 71, 2))
sketch6.addConstraint(Sketcher.Constraint("Tangent", 71, 1, 72, 1))
sketch6.addConstraint(Sketcher.Constraint("Tangent", 72, 2, 73, 2))
sketch6.addConstraint(Sketcher.Constraint("Tangent", 73, 1, 74, 1))
sketch6.addConstraint(Sketcher.Constraint("Tangent", 74, 2, 75, 2))
sketch6.addConstraint(Sketcher.Constraint("Tangent", 75, 1, 76, 1))
sketch6.addConstraint(Sketcher.Constraint("Tangent", 76, 2, 77, 2))
sketch6.addConstraint(Sketcher.Constraint("Tangent", 77, 1, 70, 1))
sketch6.addConstraint(Sketcher.Constraint("Tangent", 78, 2, 79, 2))
sketch6.addConstraint(Sketcher.Constraint("Tangent", 79, 1, 80, 1))
sketch6.addConstraint(Sketcher.Constraint("Tangent", 80, 2, 81, 2))
sketch6.addConstraint(Sketcher.Constraint("Tangent", 81, 1, 82, 1))
sketch6.addConstraint(Sketcher.Constraint("Tangent", 82, 2, 83, 2))
sketch6.addConstraint(Sketcher.Constraint("Tangent", 83, 1, 84, 1))
sketch6.addConstraint(Sketcher.Constraint("Tangent", 84, 2, 85, 2))
sketch6.addConstraint(Sketcher.Constraint("Tangent", 85, 1, 86, 1))
sketch6.addConstraint(Sketcher.Constraint("Tangent", 86, 2, 87, 2))
sketch6.addConstraint(Sketcher.Constraint("Tangent", 87, 1, 78, 1))
sketch6.addConstraint(Sketcher.Constraint("Vertical", 2))
sketch6.addConstraint(Sketcher.Constraint("Horizontal", 4))
sketch6.addConstraint(Sketcher.Constraint("Vertical", 6))
sketch6.addConstraint(Sketcher.Constraint("Horizontal", 8))
sketch6.addConstraint(Sketcher.Constraint("Horizontal", 10))
sketch6.addConstraint(Sketcher.Constraint("Vertical", 12))
sketch6.addConstraint(Sketcher.Constraint("Horizontal", 14))
sketch6.addConstraint(Sketcher.Constraint("Vertical", 16))
sketch6.addConstraint(Sketcher.Constraint("Horizontal", 20))
sketch6.addConstraint(Sketcher.Constraint("Vertical", 22))
sketch6.addConstraint(Sketcher.Constraint("Horizontal", 24))
sketch6.addConstraint(Sketcher.Constraint("Vertical", 26))
sketch6.addConstraint(Sketcher.Constraint("Horizontal", 28))
sketch6.addConstraint(Sketcher.Constraint("Vertical", 30))
sketch6.addConstraint(Sketcher.Constraint("Horizontal", 32))
sketch6.addConstraint(Sketcher.Constraint("Vertical", 34))
sketch6.addConstraint(Sketcher.Constraint("Horizontal", 36))
sketch6.addConstraint(Sketcher.Constraint("Vertical", 38))
sketch6.addConstraint(Sketcher.Constraint("Horizontal", 40))
sketch6.addConstraint(Sketcher.Constraint("Vertical", 42))
sketch6.addConstraint(Sketcher.Constraint("Horizontal", 44))
sketch6.addConstraint(Sketcher.Constraint("Vertical", 48))
sketch6.addConstraint(Sketcher.Constraint("Horizontal", 50))
sketch6.addConstraint(Sketcher.Constraint("Vertical", 52))
sketch6.addConstraint(Sketcher.Constraint("Horizontal", 54))
sketch6.addConstraint(Sketcher.Constraint("Vertical", 56))
sketch6.addConstraint(Sketcher.Constraint("Horizontal", 58))
sketch6.addConstraint(Sketcher.Constraint("Vertical", 60))
sketch6.addConstraint(Sketcher.Constraint("Vertical", 62))
sketch6.addConstraint(Sketcher.Constraint("Horizontal", 64))
sketch6.addConstraint(Sketcher.Constraint("Vertical", 66))
sketch6.addConstraint(Sketcher.Constraint("Horizontal", 68))
sketch6.addConstraint(Sketcher.Constraint("Horizontal", 70))
sketch6.addConstraint(Sketcher.Constraint("Vertical", 72))
sketch6.addConstraint(Sketcher.Constraint("Horizontal", 74))
sketch6.addConstraint(Sketcher.Constraint("Vertical", 76))
sketch6.addConstraint(Sketcher.Constraint("Horizontal", 78))
sketch6.addConstraint(Sketcher.Constraint("Vertical", 80))
sketch6.addConstraint(Sketcher.Constraint("Horizontal", 84))
sketch6.addConstraint(Sketcher.Constraint("Vertical", 86))
sketch6.addConstraint(Sketcher.Constraint("Equal", 1, 3))
sketch6.addConstraint(Sketcher.Constraint("Equal", 3, 5))
sketch6.addConstraint(Sketcher.Constraint("Equal", 5, 7))
sketch6.addConstraint(Sketcher.Constraint("Equal", 7, 9))
sketch6.addConstraint(Sketcher.Constraint("Equal", 9, 11))
sketch6.addConstraint(Sketcher.Constraint("Equal", 11, 13))
sketch6.addConstraint(Sketcher.Constraint("Equal", 13, 15))
sketch6.addConstraint(Sketcher.Constraint("Equal", 15, 17))
sketch6.addConstraint(Sketcher.Constraint("Equal", 17, 19))
sketch6.addConstraint(Sketcher.Constraint("Equal", 19, 21))
sketch6.addConstraint(Sketcher.Constraint("Equal", 21, 23))
sketch6.addConstraint(Sketcher.Constraint("Equal", 23, 25))
sketch6.addConstraint(Sketcher.Constraint("Equal", 25, 27))
sketch6.addConstraint(Sketcher.Constraint("Equal", 27, 29))
sketch6.addConstraint(Sketcher.Constraint("Equal", 29, 31))
sketch6.addConstraint(Sketcher.Constraint("Equal", 31, 33))
sketch6.addConstraint(Sketcher.Constraint("Equal", 33, 35))
sketch6.addConstraint(Sketcher.Constraint("Equal", 35, 37))
sketch6.addConstraint(Sketcher.Constraint("Equal", 37, 39))
sketch6.addConstraint(Sketcher.Constraint("Equal", 39, 41))
sketch6.addConstraint(Sketcher.Constraint("Equal", 41, 43))
sketch6.addConstraint(Sketcher.Constraint("Equal", 43, 45))
sketch6.addConstraint(Sketcher.Constraint("Equal", 45, 47))
sketch6.addConstraint(Sketcher.Constraint("Equal", 47, 49))
sketch6.addConstraint(Sketcher.Constraint("Equal", 49, 51))
sketch6.addConstraint(Sketcher.Constraint("Equal", 51, 53))
sketch6.addConstraint(Sketcher.Constraint("Equal", 53, 55))
sketch6.addConstraint(Sketcher.Constraint("Equal", 55, 57))
sketch6.addConstraint(Sketcher.Constraint("Equal", 57, 59))
sketch6.addConstraint(Sketcher.Constraint("Equal", 59, 61))
sketch6.addConstraint(Sketcher.Constraint("Equal", 61, 63))
sketch6.addConstraint(Sketcher.Constraint("Equal", 63, 65))
sketch6.addConstraint(Sketcher.Constraint("Equal", 65, 67))
sketch6.addConstraint(Sketcher.Constraint("Equal", 67, 69))
sketch6.addConstraint(Sketcher.Constraint("Equal", 69, 71))
sketch6.addConstraint(Sketcher.Constraint("Equal", 71, 73))
sketch6.addConstraint(Sketcher.Constraint("Equal", 73, 75))
sketch6.addConstraint(Sketcher.Constraint("Equal", 75, 77))
sketch6.addConstraint(Sketcher.Constraint("Equal", 77, 79))
sketch6.addConstraint(Sketcher.Constraint("Equal", 79, 81))
sketch6.addConstraint(Sketcher.Constraint("Equal", 81, 83))
sketch6.addConstraint(Sketcher.Constraint("Equal", 83, 85))
sketch6.addConstraint(Sketcher.Constraint("Equal", 85, 87))
sketch6.addConstraint(Sketcher.Constraint("Symmetric", 19, 3, 45, 3, -2))
sketch6.addConstraint(Sketcher.Constraint("Symmetric", 27, 3, 47, 3, -2))
sketch6.addConstraint(Sketcher.Constraint("Symmetric", 23, 3, 51, 3, -2))
sketch6.addConstraint(Sketcher.Constraint("Symmetric", 37, 3, 63, 3, -2))
sketch6.addConstraint(Sketcher.Constraint("Symmetric", 41, 3, 67, 3, -2))
sketch6.addConstraint(Sketcher.Constraint("Symmetric", 35, 3, 71, 3, -2))
sketch6.addConstraint(Sketcher.Constraint("Symmetric", 31, 3, 75, 3, -2))
sketch6.addConstraint(Sketcher.Constraint("Symmetric", 3, 3, 79, 3, -2))
sketch6.addConstraint(Sketcher.Constraint("Symmetric", 9, 3, 83, 3, -2))
sketch6.addConstraint(Sketcher.Constraint("Perpendicular", 0, 82))
sketch6.addConstraint(Sketcher.Constraint("Horizontal", 5, 3, 13, 3))
sketch6.addConstraint(Sketcher.Constraint("Horizontal", 35, 3, 37, 3))
sketch6.addConstraint(Sketcher.Constraint("Horizontal", 33, 3, 39, 3))
sketch6.addConstraint(Sketcher.Constraint("Horizontal", 1, 3, 81, 3))
sketch6.addConstraint(Sketcher.Constraint("Vertical", 3, 3, 25, 3))
sketch6.addConstraint(Sketcher.Constraint("Vertical", 27, 3, 33, 3))
sketch6.addConstraint(Sketcher.Constraint("Equal", 4, 78))
sketch6.addConstraint(Sketcher.Constraint("Radius", 1, 2.5))
sketch6.addConstraint(Sketcher.Constraint("DistanceY", 7, 3, -1, 1, 42.0))
sketch6.addConstraint(Sketcher.Constraint("DistanceY", 11, 3, -1, 1, 43.0))
sketch6.addConstraint(Sketcher.Constraint("DistanceY", -1, 1, 19, 3, 42.0))
sketch6.addConstraint(Sketcher.Constraint("DistanceX", 1, 3, -1, 1, 48.1))
sketch6.addConstraint(Sketcher.Constraint("DistanceY", 56, 2, 56, 1, 5.872901))
sketch6.addConstraint(Sketcher.Constraint("DistanceX", 4, 1, 4, 2, 9.974262))
sketch6.addConstraint(Sketcher.Constraint("DistanceX", 36, 1, 36, 2, 10.384171))
sketch6.addConstraint(Sketcher.Constraint("DistanceY", 22, 2, 22, 1, 15.163742))
sketch6.addConstraint(Sketcher.Constraint("DistanceY", 26, 1, 26, 2, 9.533641))
sketch6.addConstraint(Sketcher.Constraint("Distance", 0, 7.05917))
sketch6.addConstraint(Sketcher.Constraint("DistanceX", 10, 2, 10, 1, 48.422715))
sketch6.addConstraint(Sketcher.Constraint("DistanceX", 20, 1, 20, 2, 29.910955))
sketch6.addConstraint(Sketcher.Constraint("DistanceX", 24, 2, 24, 1, 36.751157))
sketch6.addConstraint(Sketcher.Constraint("DistanceX", 28, 1, 28, 2, 20.172896))
sketch6.addConstraint(Sketcher.Constraint("DistanceX", 54, 1, 54, 2, 24.500224))
sketch6.addConstraint(Sketcher.Constraint("DistanceY", 2, 1, 2, 2, 7.482856))
sketch6.addConstraint(Sketcher.Constraint("DistanceY", 30, 2, 30, 1, 8.012633))
sketch6.addConstraint(Sketcher.Constraint("DistanceY", -1, 1, 55, 3, 15.896519))
sketch6.addConstraint(Sketcher.Constraint("DistanceX", 11, 3, -1, 1, 24.211357))
sketch6.addConstraint(Sketcher.Constraint("DistanceY", 29, 3, -1, 1, 2.556383))
sketch6.addConstraint(Sketcher.Constraint("DistanceX", 37, 3, -1, 1, 5.533747))
sketch6.addConstraint(Sketcher.Constraint("DistanceX", -1, 1, 55, 3, 12.250112))
pocket3 = body.newObject("PartDesign::Pocket", "Pocket002")
pocket3.Profile = sketch6
pocket3.Length = 10
pocket3.Reversed = True

# Sketch on XZ plane
sketch7 = body.newObject("Sketcher::SketchObject", "Sketch006")
sketch7.AttachmentSupport = (doc.getObject("XZ_Plane"), [""])
sketch7.MapMode = "FlatFace"
sketch7.AttachmentOffset = App.Placement(App.Vector(0, 0, -2.5), App.Rotation())
sketch7.addGeometry(Part.Circle(App.Vector(-52, -20.06, 0), App.Vector(0, 0, 1), 2), False)
sketch7.addGeometry(Part.Circle(App.Vector(-46.4, -20.06, 0), App.Vector(0, 0, 1), 2), False)
sketch7.addGeometry(Part.Circle(App.Vector(-26.4, -20.06, 0), App.Vector(0, 0, 1), 2), False)
sketch7.addGeometry(Part.Circle(App.Vector(-20.8, -20.06, 0), App.Vector(0, 0, 1), 2), False)
sketch7.addGeometry(Part.Circle(App.Vector(-52, 8.27, 0), App.Vector(0, 0, 1), 2), False)
sketch7.addGeometry(Part.Circle(App.Vector(-46.4, 8.27, 0), App.Vector(0, 0, 1), 2), False)
sketch7.addGeometry(Part.Circle(App.Vector(-52, 18.84, 0), App.Vector(0, 0, 1), 2), False)
sketch7.addGeometry(Part.Circle(App.Vector(-46.4, 18.84, 0), App.Vector(0, 0, 1), 2), False)
sketch7.addGeometry(Part.Circle(App.Vector(-26.4, 18.84, 0), App.Vector(0, 0, 1), 2), False)
sketch7.addGeometry(Part.Circle(App.Vector(-20.8, 18.84, 0), App.Vector(0, 0, 1), 2), False)
sketch7.addGeometry(Part.Circle(App.Vector(-20.8, 8.27, 0), App.Vector(0, 0, 1), 2), False)
sketch7.addGeometry(Part.Circle(App.Vector(-26.4, 8.27, 0), App.Vector(0, 0, 1), 2), False)
sketch7.addGeometry(Part.Circle(App.Vector(20.8, 18.84, 0), App.Vector(0, 0, 1), 2), False)
sketch7.addGeometry(Part.Circle(App.Vector(26.4, 18.84, 0), App.Vector(0, 0, 1), 2), False)
sketch7.addGeometry(Part.Circle(App.Vector(20.8, 8.27, 0), App.Vector(0, 0, 1), 2), False)
sketch7.addGeometry(Part.Circle(App.Vector(26.4, 8.27, 0), App.Vector(0, 0, 1), 2), False)
sketch7.addGeometry(Part.Circle(App.Vector(46.4, 18.84, 0), App.Vector(0, 0, 1), 2), False)
sketch7.addGeometry(Part.Circle(App.Vector(52, 18.84, 0), App.Vector(0, 0, 1), 2), False)
sketch7.addGeometry(Part.Circle(App.Vector(46.4, 8.27, 0), App.Vector(0, 0, 1), 2), False)
sketch7.addGeometry(Part.Circle(App.Vector(52, 8.27, 0), App.Vector(0, 0, 1), 2), False)
sketch7.addGeometry(Part.Circle(App.Vector(20.8, -20.06, 0), App.Vector(0, 0, 1), 2), False)
sketch7.addGeometry(Part.Circle(App.Vector(26.4, -20.06, 0), App.Vector(0, 0, 1), 2), False)
sketch7.addGeometry(Part.Circle(App.Vector(52, -20.06, 0), App.Vector(0, 0, 1), 2), False)
sketch7.addGeometry(Part.Circle(App.Vector(46.4, -20.06, 0), App.Vector(0, 0, 1), 2), False)
sketch7.addConstraint(Sketcher.Constraint("Equal", 0, 1))
sketch7.addConstraint(Sketcher.Constraint("Equal", 1, 2))
sketch7.addConstraint(Sketcher.Constraint("Equal", 2, 3))
sketch7.addConstraint(Sketcher.Constraint("Equal", 3, 4))
sketch7.addConstraint(Sketcher.Constraint("Equal", 4, 5))
sketch7.addConstraint(Sketcher.Constraint("Equal", 5, 6))
sketch7.addConstraint(Sketcher.Constraint("Equal", 6, 7))
sketch7.addConstraint(Sketcher.Constraint("Equal", 7, 8))
sketch7.addConstraint(Sketcher.Constraint("Equal", 8, 9))
sketch7.addConstraint(Sketcher.Constraint("Equal", 9, 10))
sketch7.addConstraint(Sketcher.Constraint("Equal", 10, 11))
sketch7.addConstraint(Sketcher.Constraint("Equal", 11, 12))
sketch7.addConstraint(Sketcher.Constraint("Equal", 12, 13))
sketch7.addConstraint(Sketcher.Constraint("Equal", 13, 14))
sketch7.addConstraint(Sketcher.Constraint("Equal", 14, 15))
sketch7.addConstraint(Sketcher.Constraint("Equal", 15, 16))
sketch7.addConstraint(Sketcher.Constraint("Equal", 16, 17))
sketch7.addConstraint(Sketcher.Constraint("Equal", 17, 18))
sketch7.addConstraint(Sketcher.Constraint("Equal", 18, 19))
sketch7.addConstraint(Sketcher.Constraint("Equal", 19, 20))
sketch7.addConstraint(Sketcher.Constraint("Equal", 20, 21))
sketch7.addConstraint(Sketcher.Constraint("Equal", 21, 22))
sketch7.addConstraint(Sketcher.Constraint("Equal", 22, 23))
sketch7.addConstraint(Sketcher.Constraint("Symmetric", 9, 3, 12, 3, -2))
sketch7.addConstraint(Sketcher.Constraint("Symmetric", 8, 3, 13, 3, -2))
sketch7.addConstraint(Sketcher.Constraint("Symmetric", 10, 3, 14, 3, -2))
sketch7.addConstraint(Sketcher.Constraint("Symmetric", 11, 3, 15, 3, -2))
sketch7.addConstraint(Sketcher.Constraint("Symmetric", 7, 3, 16, 3, -2))
sketch7.addConstraint(Sketcher.Constraint("Symmetric", 6, 3, 17, 3, -2))
sketch7.addConstraint(Sketcher.Constraint("Symmetric", 5, 3, 18, 3, -2))
sketch7.addConstraint(Sketcher.Constraint("Symmetric", 4, 3, 19, 3, -2))
sketch7.addConstraint(Sketcher.Constraint("Symmetric", 3, 3, 20, 3, -2))
sketch7.addConstraint(Sketcher.Constraint("Symmetric", 2, 3, 21, 3, -2))
sketch7.addConstraint(Sketcher.Constraint("Symmetric", 0, 3, 22, 3, -2))
sketch7.addConstraint(Sketcher.Constraint("Symmetric", 1, 3, 23, 3, -2))
sketch7.addConstraint(Sketcher.Constraint("Horizontal", 0, 3, 1, 3))
sketch7.addConstraint(Sketcher.Constraint("Horizontal", 1, 3, 2, 3))
sketch7.addConstraint(Sketcher.Constraint("Horizontal", 2, 3, 3, 3))
sketch7.addConstraint(Sketcher.Constraint("Horizontal", 4, 3, 5, 3))
sketch7.addConstraint(Sketcher.Constraint("Horizontal", 6, 3, 7, 3))
sketch7.addConstraint(Sketcher.Constraint("Horizontal", 7, 3, 8, 3))
sketch7.addConstraint(Sketcher.Constraint("Horizontal", 8, 3, 9, 3))
sketch7.addConstraint(Sketcher.Constraint("Horizontal", 5, 3, 10, 3))
sketch7.addConstraint(Sketcher.Constraint("Horizontal", 10, 3, 11, 3))
sketch7.addConstraint(Sketcher.Constraint("Vertical", 0, 3, 4, 3))
sketch7.addConstraint(Sketcher.Constraint("Vertical", 1, 3, 5, 3))
sketch7.addConstraint(Sketcher.Constraint("Vertical", 4, 3, 6, 3))
sketch7.addConstraint(Sketcher.Constraint("Vertical", 5, 3, 7, 3))
sketch7.addConstraint(Sketcher.Constraint("Vertical", 2, 3, 8, 3))
sketch7.addConstraint(Sketcher.Constraint("Vertical", 3, 3, 9, 3))
sketch7.addConstraint(Sketcher.Constraint("Vertical", 9, 3, 10, 3))
sketch7.addConstraint(Sketcher.Constraint("Vertical", 8, 3, 11, 3))
sketch7.addConstraint(Sketcher.Constraint("Diameter", 0, 4.0))
sketch7.addConstraint(Sketcher.Constraint("DistanceX", 0, 3, -1, 1, 52.0))
sketch7.addConstraint(Sketcher.Constraint("DistanceX", 1, 3, 2, 3, 20.0))
sketch7.addConstraint(Sketcher.Constraint("DistanceX", 1, 3, -1, 1, 46.4))
sketch7.addConstraint(Sketcher.Constraint("DistanceX", 3, 3, -1, 1, 20.8))
sketch7.addConstraint(Sketcher.Constraint("DistanceY", 0, 3, 6, 3, 38.9))
sketch7.addConstraint(Sketcher.Constraint("DistanceY", 0, 3, -1, 1, 20.06))
sketch7.addConstraint(Sketcher.Constraint("DistanceY", -1, 1, 4, 3, 8.27))
pocket4 = body.newObject("PartDesign::Pocket", "Pocket003")
pocket4.Profile = sketch7
pocket4.Length = 1.5
pocket4.Reversed = True

doc.recompute()
